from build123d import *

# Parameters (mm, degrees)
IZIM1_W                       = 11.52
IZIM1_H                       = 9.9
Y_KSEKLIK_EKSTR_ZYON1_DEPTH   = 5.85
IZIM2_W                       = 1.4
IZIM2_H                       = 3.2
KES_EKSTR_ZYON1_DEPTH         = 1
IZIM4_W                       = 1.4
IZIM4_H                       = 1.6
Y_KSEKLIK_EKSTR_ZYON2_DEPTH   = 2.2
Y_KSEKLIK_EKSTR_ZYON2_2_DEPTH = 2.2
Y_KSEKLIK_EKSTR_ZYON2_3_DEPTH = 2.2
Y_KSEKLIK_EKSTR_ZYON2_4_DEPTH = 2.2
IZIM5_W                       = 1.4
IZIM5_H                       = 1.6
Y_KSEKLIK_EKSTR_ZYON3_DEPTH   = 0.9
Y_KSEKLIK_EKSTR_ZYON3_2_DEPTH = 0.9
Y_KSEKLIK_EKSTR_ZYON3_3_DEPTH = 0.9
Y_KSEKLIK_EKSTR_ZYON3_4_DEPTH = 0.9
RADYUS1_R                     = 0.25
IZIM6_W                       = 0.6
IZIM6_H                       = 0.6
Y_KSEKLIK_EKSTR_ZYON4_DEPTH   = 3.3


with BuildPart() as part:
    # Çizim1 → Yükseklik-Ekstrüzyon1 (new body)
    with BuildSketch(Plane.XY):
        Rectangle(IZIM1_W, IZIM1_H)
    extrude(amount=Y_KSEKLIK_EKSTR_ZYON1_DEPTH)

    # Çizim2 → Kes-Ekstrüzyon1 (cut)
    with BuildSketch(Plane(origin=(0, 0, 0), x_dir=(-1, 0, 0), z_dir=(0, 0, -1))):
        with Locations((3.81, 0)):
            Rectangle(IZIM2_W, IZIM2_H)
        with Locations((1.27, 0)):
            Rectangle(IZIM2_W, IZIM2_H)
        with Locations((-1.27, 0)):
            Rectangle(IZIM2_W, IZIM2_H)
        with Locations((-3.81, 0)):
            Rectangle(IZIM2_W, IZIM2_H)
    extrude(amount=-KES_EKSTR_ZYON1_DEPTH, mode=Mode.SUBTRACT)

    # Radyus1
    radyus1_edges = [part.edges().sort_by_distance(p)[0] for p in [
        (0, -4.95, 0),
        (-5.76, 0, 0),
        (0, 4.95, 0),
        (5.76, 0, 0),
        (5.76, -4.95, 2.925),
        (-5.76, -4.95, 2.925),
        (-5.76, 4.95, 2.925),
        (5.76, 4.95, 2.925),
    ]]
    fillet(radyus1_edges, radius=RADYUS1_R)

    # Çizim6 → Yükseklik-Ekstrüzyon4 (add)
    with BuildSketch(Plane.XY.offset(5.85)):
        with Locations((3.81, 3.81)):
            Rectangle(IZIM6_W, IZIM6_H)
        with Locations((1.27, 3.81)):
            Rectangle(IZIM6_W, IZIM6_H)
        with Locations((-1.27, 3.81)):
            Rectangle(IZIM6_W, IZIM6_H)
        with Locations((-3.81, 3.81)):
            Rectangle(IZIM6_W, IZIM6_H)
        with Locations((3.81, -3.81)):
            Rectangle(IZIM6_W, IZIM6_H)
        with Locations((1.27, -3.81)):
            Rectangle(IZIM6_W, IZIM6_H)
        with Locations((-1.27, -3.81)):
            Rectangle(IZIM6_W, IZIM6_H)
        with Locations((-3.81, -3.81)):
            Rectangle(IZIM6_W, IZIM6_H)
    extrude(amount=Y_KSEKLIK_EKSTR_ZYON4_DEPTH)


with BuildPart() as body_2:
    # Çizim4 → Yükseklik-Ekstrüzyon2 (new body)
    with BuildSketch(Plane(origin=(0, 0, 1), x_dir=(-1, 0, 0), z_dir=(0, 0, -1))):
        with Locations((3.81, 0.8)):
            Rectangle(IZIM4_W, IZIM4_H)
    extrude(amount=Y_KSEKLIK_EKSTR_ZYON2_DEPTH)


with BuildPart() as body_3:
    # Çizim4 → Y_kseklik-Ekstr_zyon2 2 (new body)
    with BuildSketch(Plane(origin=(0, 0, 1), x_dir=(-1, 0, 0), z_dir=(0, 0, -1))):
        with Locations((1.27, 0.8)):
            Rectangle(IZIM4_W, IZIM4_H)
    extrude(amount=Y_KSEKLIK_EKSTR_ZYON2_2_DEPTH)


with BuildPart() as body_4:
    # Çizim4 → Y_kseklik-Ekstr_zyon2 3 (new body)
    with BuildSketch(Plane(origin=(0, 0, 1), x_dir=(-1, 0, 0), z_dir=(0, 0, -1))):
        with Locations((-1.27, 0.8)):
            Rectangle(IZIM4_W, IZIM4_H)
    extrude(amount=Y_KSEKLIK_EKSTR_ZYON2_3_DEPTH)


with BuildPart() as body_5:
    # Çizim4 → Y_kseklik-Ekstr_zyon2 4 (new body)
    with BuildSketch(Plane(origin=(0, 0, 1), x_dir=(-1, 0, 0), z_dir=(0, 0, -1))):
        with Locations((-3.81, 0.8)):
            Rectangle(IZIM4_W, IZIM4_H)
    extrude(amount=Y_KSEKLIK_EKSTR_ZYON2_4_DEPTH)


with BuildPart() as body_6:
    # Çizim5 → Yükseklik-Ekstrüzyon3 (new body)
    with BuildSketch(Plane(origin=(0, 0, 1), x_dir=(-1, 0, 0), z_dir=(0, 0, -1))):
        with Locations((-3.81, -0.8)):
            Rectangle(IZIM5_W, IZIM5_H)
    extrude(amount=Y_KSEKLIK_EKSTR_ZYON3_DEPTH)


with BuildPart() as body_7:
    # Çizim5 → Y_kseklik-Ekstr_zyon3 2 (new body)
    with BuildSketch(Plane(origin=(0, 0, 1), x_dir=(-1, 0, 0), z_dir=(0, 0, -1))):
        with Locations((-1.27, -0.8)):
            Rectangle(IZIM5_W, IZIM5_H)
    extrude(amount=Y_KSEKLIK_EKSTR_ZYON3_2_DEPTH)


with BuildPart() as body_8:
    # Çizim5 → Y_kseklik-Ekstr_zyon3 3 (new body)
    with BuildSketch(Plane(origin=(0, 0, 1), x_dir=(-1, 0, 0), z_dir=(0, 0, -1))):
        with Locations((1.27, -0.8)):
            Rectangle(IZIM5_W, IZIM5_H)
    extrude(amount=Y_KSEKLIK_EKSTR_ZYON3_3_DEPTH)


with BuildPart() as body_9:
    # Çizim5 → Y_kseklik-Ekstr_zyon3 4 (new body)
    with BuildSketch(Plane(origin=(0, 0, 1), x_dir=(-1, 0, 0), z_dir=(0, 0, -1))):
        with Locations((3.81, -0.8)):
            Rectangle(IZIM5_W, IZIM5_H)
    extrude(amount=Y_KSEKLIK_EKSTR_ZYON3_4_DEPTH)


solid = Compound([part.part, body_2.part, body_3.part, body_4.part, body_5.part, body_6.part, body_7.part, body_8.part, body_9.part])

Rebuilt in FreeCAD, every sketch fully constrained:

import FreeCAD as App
import Part
import Sketcher
from FreeCAD import Vector
Q = App.Units.Quantity


def edges_at(feature, points):
    """Names of the edges that pass closest to the given points."""
    edges = feature.Shape.Edges
    near = lambda p: min(range(len(edges)), key=lambda i: edges[i].distToShape(Part.Vertex(*p))[0])
    return sorted({f"Edge{near(p) + 1}" for p in points})


def add_polygon(sketch, points):
    """Adds a closed chain of lines whose ends are joined by coincident constraints."""
    first, n = sketch.GeometryCount, len(points)
    for a, b in zip(points, points[1:] + points[:1]):
        sketch.addGeometry(Part.LineSegment(App.Vector(*a, 0), App.Vector(*b, 0)), False)
    for i in range(n):
        sketch.addConstraint(Sketcher.Constraint("Coincident", first + i, 2, first + (i + 1) % n, 1))

doc = App.newDocument("Part")
params = doc.addObject("Spreadsheet::Sheet", "Params")
for row, (alias, value) in enumerate([
    ("sketch1_height", "9.9 mm"),
    ("sketch1_width", "11.52 mm"),
    ("pad1_length", "5.85 mm"),
    ("sketch2_width", "1.4 mm"),
    ("sketch2_height", "3.2 mm"),
    ("pocket1_length", "1 mm"),
    ("fillet_radius", "0.25 mm"),
    ("sketch3_width", "0.6 mm"),
    ("pad2_length", "3.3 mm"),
    ("sketch4_width", "1.4 mm"),
    ("sketch4_height", "1.6 mm"),
    ("pad3_length", "2.2 mm"),
    ("sketch5_width", "1.4 mm"),
    ("sketch5_height", "1.6 mm"),
    ("pad4_length", "2.2 mm"),
    ("sketch6_width", "1.4 mm"),
    ("sketch6_height", "1.6 mm"),
    ("pad5_length", "2.2 mm"),
    ("sketch7_width", "1.4 mm"),
    ("sketch7_height", "1.6 mm"),
    ("pad6_length", "2.2 mm"),
    ("sketch8_width", "1.4 mm"),
    ("sketch8_height", "1.6 mm"),
    ("pad7_length", "0.9 mm"),
    ("sketch9_width", "1.4 mm"),
    ("sketch9_height", "1.6 mm"),
    ("pad8_length", "0.9 mm"),
    ("sketch10_width", "1.4 mm"),
    ("sketch10_height", "1.6 mm"),
    ("pad9_length", "0.9 mm"),
    ("sketch11_width", "1.4 mm"),
    ("sketch11_height", "1.6 mm"),
    ("pad10_length", "0.9 mm"),
], start=1):
    params.set(f"A{row}", alias)
    params.set(f"B{row}", "=" + value)
    params.setAlias(f"B{row}", alias)

body = doc.addObject("PartDesign::Body", "Body")

# Sketch on XY plane
sketch1 = body.newObject("Sketcher::SketchObject", "Sketch")
sketch1.AttachmentSupport = (doc.getObject("XY_Plane"), [""])
sketch1.MapMode = "FlatFace"
add_polygon(sketch1, [(-6, 5), (-6, -5), (6, -5), (6, 5)])  # lines 0-3
sketch1.addConstraint(Sketcher.Constraint("Vertical", 0))
sketch1.addConstraint(Sketcher.Constraint("Horizontal", 1))
sketch1.addConstraint(Sketcher.Constraint("Vertical", 2))
sketch1.addConstraint(Sketcher.Constraint("Horizontal", 3))
sketch1.addConstraint(Sketcher.Constraint("Symmetric", 0, 2, 2, 2, -1, 1))
sketch1.addConstraint(Sketcher.Constraint("DistanceY", 0, 2, 0, 1, Q("9.9 mm")))
sketch1.addConstraint(Sketcher.Constraint("DistanceX", 1, 1, 1, 2, Q("11.52 mm")))
sketch1.setExpression("Constraints[9]", "Params.sketch1_height")
sketch1.setExpression("Constraints[10]", "Params.sketch1_width")
pad1 = body.newObject("PartDesign::Pad", "Pad")
pad1.Profile = sketch1
pad1.setExpression("Length", "Params.pad1_length")

# Sketch on XY plane
sketch2 = body.newObject("Sketcher::SketchObject", "Sketch001")
sketch2.AttachmentSupport = (doc.getObject("XY_Plane"), [""])
sketch2.MapMode = "FlatFace"
add_polygon(sketch2, [(-3.1, 1.6), (-3.1, -1.6), (-4.5, -1.6), (-4.5, 1.6)])  # lines 0-3
add_polygon(sketch2, [(-0.6, 1.6), (-0.6, -1.6), (-2, -1.6), (-2, 1.6)])  # lines 4-7
add_polygon(sketch2, [(2, 1.6), (2, -1.6), (0.6, -1.6), (0.6, 1.6)])  # lines 8-11
add_polygon(sketch2, [(4.5, 1.6), (4.5, -1.6), (3.1, -1.6), (3.1, 1.6)])  # lines 12-15
sketch2.addConstraint(Sketcher.Constraint("Vertical", 0))
sketch2.addConstraint(Sketcher.Constraint("Horizontal", 1))
sketch2.addConstraint(Sketcher.Constraint("Vertical", 2))
sketch2.addConstraint(Sketcher.Constraint("Horizontal", 3))
sketch2.addConstraint(Sketcher.Constraint("Vertical", 4))
sketch2.addConstraint(Sketcher.Constraint("Horizontal", 5))
sketch2.addConstraint(Sketcher.Constraint("Vertical", 6))
sketch2.addConstraint(Sketcher.Constraint("Horizontal", 7))
sketch2.addConstraint(Sketcher.Constraint("Vertical", 8))
sketch2.addConstraint(Sketcher.Constraint("Horizontal", 9))
sketch2.addConstraint(Sketcher.Constraint("Vertical", 10))
sketch2.addConstraint(Sketcher.Constraint("Horizontal", 11))
sketch2.addConstraint(Sketcher.Constraint("Vertical", 12))
sketch2.addConstraint(Sketcher.Constraint("Horizontal", 13))
sketch2.addConstraint(Sketcher.Constraint("Vertical", 14))
sketch2.addConstraint(Sketcher.Constraint("Horizontal", 15))
sketch2.addConstraint(Sketcher.Constraint("Symmetric", 6, 2, 8, 2, -1, 1))
sketch2.addConstraint(Sketcher.Constraint("Symmetric", 4, 2, 10, 2, -1, 1))
sketch2.addConstraint(Sketcher.Constraint("Symmetric", 2, 2, 12, 2, -1, 1))
sketch2.addConstraint(Sketcher.Constraint("Symmetric", 0, 2, 14, 2, -1, 1))
sketch2.addConstraint(Sketcher.Constraint("Horizontal", 1, 2, 4, 2))
sketch2.addConstraint(Sketcher.Constraint("Horizontal", 3, 2, 6, 2))
sketch2.addConstraint(Sketcher.Constraint("Horizontal", 5, 2, 8, 2))
sketch2.addConstraint(Sketcher.Constraint("Equal", 3, 5))
sketch2.addConstraint(Sketcher.Constraint("DistanceX", 1, 2, 1, 1, Q("1.4 mm")))
sketch2.addConstraint(Sketcher.Constraint("DistanceY", 0, 2, 0, 1, Q("3.2 mm")))
sketch2.addConstraint(Sketcher.Constraint("DistanceX", 0, 2, -1, 1, Q("3.11 mm")))
sketch2.addConstraint(Sketcher.Constraint("DistanceX", 4, 2, -1, 1, Q("0.57 mm")))
sketch2.setExpression("Constraints[40]", "Params.sketch2_width")
sketch2.setExpression("Constraints[41]", "Params.sketch2_height")
pocket1 = body.newObject("PartDesign::Pocket", "Pocket")
pocket1.Profile = sketch2
pocket1.setExpression("Length", "Params.pocket1_length")
pocket1.Reversed = True
doc.recompute()

fillet = body.newObject("PartDesign::Fillet", "Fillet")
fillet.Base = (pocket1, edges_at(pocket1, [
    (0, -4.95, 0),
    (-5.76, 0, 0),
    (0, 4.95, 0),
    (5.76, 0, 0),
    (5.76, -4.95, 2.925),
    (-5.76, -4.95, 2.925),
    (-5.76, 4.95, 2.925),
    (5.76, 4.95, 2.925),
]))
fillet.setExpression("Radius", "Params.fillet_radius")

# Sketch on XY plane
sketch3 = body.newObject("Sketcher::SketchObject", "Sketch002")
sketch3.AttachmentSupport = (doc.getObject("XY_Plane"), [""])
sketch3.MapMode = "FlatFace"
sketch3.AttachmentOffset = App.Placement(Vector(0, 0, 5.85), App.Rotation())
add_polygon(sketch3, [(3.5, 4.1), (3.5, 3.5), (4.1, 3.5), (4.1, 4.1)])  # lines 0-3
add_polygon(sketch3, [(1, 4.1), (1, 3.5), (1.6, 3.5), (1.6, 4.1)])  # lines 4-7
add_polygon(sketch3, [(-1.6, 4.1), (-1.6, 3.5), (-1, 3.5), (-1, 4.1)])  # lines 8-11
add_polygon(sketch3, [(-4.1, 4.1), (-4.1, 3.5), (-3.5, 3.5), (-3.5, 4.1)])  # lines 12-15
add_polygon(sketch3, [(3.5, -3.5), (3.5, -4.1), (4.1, -4.1), (4.1, -3.5)])  # lines 16-19
add_polygon(sketch3, [(1, -3.5), (1, -4.1), (1.6, -4.1), (1.6, -3.5)])  # lines 20-23
add_polygon(sketch3, [(-1.6, -3.5), (-1.6, -4.1), (-1, -4.1), (-1, -3.5)])  # lines 24-27
add_polygon(sketch3, [(-4.1, -3.5), (-4.1, -4.1), (-3.5, -4.1), (-3.5, -3.5)])  # lines 28-31
sketch3.addConstraint(Sketcher.Constraint("Vertical", 0))
sketch3.addConstraint(Sketcher.Constraint("Horizontal", 1))
sketch3.addConstraint(Sketcher.Constraint("Vertical", 2))
sketch3.addConstraint(Sketcher.Constraint("Horizontal", 3))
sketch3.addConstraint(Sketcher.Constraint("Vertical", 4))
sketch3.addConstraint(Sketcher.Constraint("Horizontal", 5))
sketch3.addConstraint(Sketcher.Constraint("Vertical", 6))
sketch3.addConstraint(Sketcher.Constraint("Horizontal", 7))
sketch3.addConstraint(Sketcher.Constraint("Vertical", 8))
sketch3.addConstraint(Sketcher.Constraint("Horizontal", 9))
sketch3.addConstraint(Sketcher.Constraint("Vertical", 10))
sketch3.addConstraint(Sketcher.Constraint("Horizontal", 11))
sketch3.addConstraint(Sketcher.Constraint("Vertical", 12))
sketch3.addConstraint(Sketcher.Constraint("Horizontal", 13))
sketch3.addConstraint(Sketcher.Constraint("Vertical", 14))
sketch3.addConstraint(Sketcher.Constraint("Horizontal", 15))
sketch3.addConstraint(Sketcher.Constraint("Vertical", 16))
sketch3.addConstraint(Sketcher.Constraint("Horizontal", 17))
sketch3.addConstraint(Sketcher.Constraint("Vertical", 18))
sketch3.addConstraint(Sketcher.Constraint("Horizontal", 19))
sketch3.addConstraint(Sketcher.Constraint("Vertical", 20))
sketch3.addConstraint(Sketcher.Constraint("Horizontal", 21))
sketch3.addConstraint(Sketcher.Constraint("Vertical", 22))
sketch3.addConstraint(Sketcher.Constraint("Horizontal", 23))
sketch3.addConstraint(Sketcher.Constraint("Vertical", 24))
sketch3.addConstraint(Sketcher.Constraint("Horizontal", 25))
sketch3.addConstraint(Sketcher.Constraint("Vertical", 26))
sketch3.addConstraint(Sketcher.Constraint("Horizontal", 27))
sketch3.addConstraint(Sketcher.Constraint("Vertical", 28))
sketch3.addConstraint(Sketcher.Constraint("Horizontal", 29))
sketch3.addConstraint(Sketcher.Constraint("Vertical", 30))
sketch3.addConstraint(Sketcher.Constraint("Horizontal", 31))
sketch3.addConstraint(Sketcher.Constraint("Symmetric", 14, 2, 16, 2, -1, 1))
sketch3.addConstraint(Sketcher.Constraint("Symmetric", 12, 2, 18, 2, -1, 1))
sketch3.addConstraint(Sketcher.Constraint("Symmetric", 10, 2, 20, 2, -1, 1))
sketch3.addConstraint(Sketcher.Constraint("Symmetric", 8, 2, 22, 2, -1, 1))
sketch3.addConstraint(Sketcher.Constraint("Symmetric", 6, 2, 24, 2, -1, 1))
sketch3.addConstraint(Sketcher.Constraint("Symmetric", 4, 2, 26, 2, -1, 1))
sketch3.addConstraint(Sketcher.Constraint("Symmetric", 2, 2, 28, 2, -1, 1))
sketch3.addConstraint(Sketcher.Constraint("Symmetric", 0, 2, 30, 2, -1, 1))
sketch3.addConstraint(Sketcher.Constraint("Symmetric", 5, 2, 8, 2, -2))
sketch3.addConstraint(Sketcher.Constraint("Symmetric", 7, 2, 10, 2, -2))
sketch3.addConstraint(Sketcher.Constraint("Symmetric", 1, 2, 12, 2, -2))
sketch3.addConstraint(Sketcher.Constraint("Symmetric", 3, 2, 14, 2, -2))
sketch3.addConstraint(Sketcher.Constraint("Horizontal", 1, 2, 4, 2))
sketch3.addConstraint(Sketcher.Constraint("Horizontal", 3, 2, 6, 2))
sketch3.addConstraint(Sketcher.Constraint("Equal", 3, 5))
sketch3.addConstraint(Sketcher.Constraint("Equal", 31, 0))
sketch3.addConstraint(Sketcher.Constraint("DistanceX", 1, 1, 1, 2, Q("0.6 mm")))
sketch3.addConstraint(Sketcher.Constraint("DistanceX", -1, 1, 0, 2, Q("3.51 mm")))
sketch3.addConstraint(Sketcher.Constraint("DistanceY", -1, 1, 0, 2, Q("3.51 mm")))
sketch3.addConstraint(Sketcher.Constraint("DistanceX", -1, 1, 4, 2, Q("0.97 mm")))
sketch3.setExpression("Constraints[80]", "Params.sketch3_width")
pad2 = body.newObject("PartDesign::Pad", "Pad001")
pad2.Profile = sketch3
pad2.setExpression("Length", "Params.pad2_length")
body2 = doc.addObject("PartDesign::Body", "Body001")

# Sketch on XY plane
sketch4 = body2.newObject("Sketcher::SketchObject", "Sketch003")
sketch4.AttachmentSupport = (doc.getObject("XY_Plane001"), [""])
sketch4.MapMode = "FlatFace"
sketch4.AttachmentOffset = App.Placement(Vector(0, 0, 1), App.Rotation())
add_polygon(sketch4, [(-3.1, 1.6), (-3.1, 0), (-4.5, 0), (-4.5, 1.6)])  # lines 0-3
sketch4.addConstraint(Sketcher.Constraint("Vertical", 0))
sketch4.addConstraint(Sketcher.Constraint("Horizontal", 1))
sketch4.addConstraint(Sketcher.Constraint("Vertical", 2))
sketch4.addConstraint(Sketcher.Constraint("Horizontal", 3))
sketch4.addConstraint(Sketcher.Constraint("PointOnObject", 0, 2, -1))
sketch4.addConstraint(Sketcher.Constraint("DistanceX", 1, 2, 1, 1, Q("1.4 mm")))
sketch4.addConstraint(Sketcher.Constraint("DistanceY", 0, 2, 0, 1, Q("1.6 mm")))
sketch4.addConstraint(Sketcher.Constraint("DistanceX", 0, 2, -1, 1, Q("3.11 mm")))
sketch4.setExpression("Constraints[9]", "Params.sketch4_width")
sketch4.setExpression("Constraints[10]", "Params.sketch4_height")
pad3 = body2.newObject("PartDesign::Pad", "Pad002")
pad3.Profile = sketch4
pad3.setExpression("Length", "Params.pad3_length")
pad3.Reversed = True
body3 = doc.addObject("PartDesign::Body", "Body002")

# Sketch on XY plane
sketch5 = body3.newObject("Sketcher::SketchObject", "Sketch004")
sketch5.AttachmentSupport = (doc.getObject("XY_Plane002"), [""])
sketch5.MapMode = "FlatFace"
sketch5.AttachmentOffset = App.Placement(Vector(0, 0, 1), App.Rotation())
add_polygon(sketch5, [(-0.6, 1.6), (-0.6, 0), (-2, 0), (-2, 1.6)])  # lines 0-3
sketch5.addConstraint(Sketcher.Constraint("Vertical", 0))
sketch5.addConstraint(Sketcher.Constraint("Horizontal", 1))
sketch5.addConstraint(Sketcher.Constraint("Vertical", 2))
sketch5.addConstraint(Sketcher.Constraint("Horizontal", 3))
sketch5.addConstraint(Sketcher.Constraint("PointOnObject", 0, 2, -1))
sketch5.addConstraint(Sketcher.Constraint("DistanceX", 1, 2, 1, 1, Q("1.4 mm")))
sketch5.addConstraint(Sketcher.Constraint("DistanceY", 0, 2, 0, 1, Q("1.6 mm")))
sketch5.addConstraint(Sketcher.Constraint("DistanceX", 0, 2, -1, 1, Q("0.57 mm")))
sketch5.setExpression("Constraints[9]", "Params.sketch5_width")
sketch5.setExpression("Constraints[10]", "Params.sketch5_height")
pad4 = body3.newObject("PartDesign::Pad", "Pad003")
pad4.Profile = sketch5
pad4.setExpression("Length", "Params.pad4_length")
pad4.Reversed = True
body4 = doc.addObject("PartDesign::Body", "Body003")

# Sketch on XY plane
sketch6 = body4.newObject("Sketcher::SketchObject", "Sketch005")
sketch6.AttachmentSupport = (doc.getObject("XY_Plane003"), [""])
sketch6.MapMode = "FlatFace"
sketch6.AttachmentOffset = App.Placement(Vector(0, 0, 1), App.Rotation())
add_polygon(sketch6, [(2, 1.6), (2, 0), (0.6, 0), (0.6, 1.6)])  # lines 0-3
sketch6.addConstraint(Sketcher.Constraint("Vertical", 0))
sketch6.addConstraint(Sketcher.Constraint("Horizontal", 1))
sketch6.addConstraint(Sketcher.Constraint("Vertical", 2))
sketch6.addConstraint(Sketcher.Constraint("Horizontal", 3))
sketch6.addConstraint(Sketcher.Constraint("PointOnObject", 0, 2, -1))
sketch6.addConstraint(Sketcher.Constraint("DistanceX", 1, 2, 1, 1, Q("1.4 mm")))
sketch6.addConstraint(Sketcher.Constraint("DistanceY", 0, 2, 0, 1, Q("1.6 mm")))
sketch6.addConstraint(Sketcher.Constraint("DistanceX", -1, 1, 0, 2, Q("1.97 mm")))
sketch6.setExpression("Constraints[9]", "Params.sketch6_width")
sketch6.setExpression("Constraints[10]", "Params.sketch6_height")
pad5 = body4.newObject("PartDesign::Pad", "Pad004")
pad5.Profile = sketch6
pad5.setExpression("Length", "Params.pad5_length")
pad5.Reversed = True
body5 = doc.addObject("PartDesign::Body", "Body004")

# Sketch on XY plane
sketch7 = body5.newObject("Sketcher::SketchObject", "Sketch006")
sketch7.AttachmentSupport = (doc.getObject("XY_Plane004"), [""])
sketch7.MapMode = "FlatFace"
sketch7.AttachmentOffset = App.Placement(Vector(0, 0, 1), App.Rotation())
add_polygon(sketch7, [(4.5, 1.6), (4.5, 0), (3.1, 0), (3.1, 1.6)])  # lines 0-3
sketch7.addConstraint(Sketcher.Constraint("Vertical", 0))
sketch7.addConstraint(Sketcher.Constraint("Horizontal", 1))
sketch7.addConstraint(Sketcher.Constraint("Vertical", 2))
sketch7.addConstraint(Sketcher.Constraint("Horizontal", 3))
sketch7.addConstraint(Sketcher.Constraint("PointOnObject", 0, 2, -1))
sketch7.addConstraint(Sketcher.Constraint("DistanceX", 1, 2, 1, 1, Q("1.4 mm")))
sketch7.addConstraint(Sketcher.Constraint("DistanceY", 0, 2, 0, 1, Q("1.6 mm")))
sketch7.addConstraint(Sketcher.Constraint("DistanceX", -1, 1, 0, 2, Q("4.51 mm")))
sketch7.setExpression("Constraints[9]", "Params.sketch7_width")
sketch7.setExpression("Constraints[10]", "Params.sketch7_height")
pad6 = body5.newObject("PartDesign::Pad", "Pad005")
pad6.Profile = sketch7
pad6.setExpression("Length", "Params.pad6_length")
pad6.Reversed = True
body6 = doc.addObject("PartDesign::Body", "Body005")

# Sketch on XY plane
sketch8 = body6.newObject("Sketcher::SketchObject", "Sketch007")
sketch8.AttachmentSupport = (doc.getObject("XY_Plane005"), [""])
sketch8.MapMode = "FlatFace"
sketch8.AttachmentOffset = App.Placement(Vector(0, 0, 1), App.Rotation())
add_polygon(sketch8, [(4.5, 0), (4.5, -1.6), (3.1, -1.6), (3.1, 0)])  # lines 0-3
sketch8.addConstraint(Sketcher.Constraint("Vertical", 0))
sketch8.addConstraint(Sketcher.Constraint("Horizontal", 1))
sketch8.addConstraint(Sketcher.Constraint("Vertical", 2))
sketch8.addConstraint(Sketcher.Constraint("Horizontal", 3))
sketch8.addConstraint(Sketcher.Constraint("PointOnObject", 2, 2, -1))
sketch8.addConstraint(Sketcher.Constraint("DistanceX", 1, 2, 1, 1, Q("1.4 mm")))
sketch8.addConstraint(Sketcher.Constraint("DistanceY", 0, 2, 0, 1, Q("1.6 mm")))
sketch8.addConstraint(Sketcher.Constraint("DistanceX", -1, 1, 0, 2, Q("4.51 mm")))
sketch8.setExpression("Constraints[9]", "Params.sketch8_width")
sketch8.setExpression("Constraints[10]", "Params.sketch8_height")
pad7 = body6.newObject("PartDesign::Pad", "Pad006")
pad7.Profile = sketch8
pad7.setExpression("Length", "Params.pad7_length")
pad7.Reversed = True
body7 = doc.addObject("PartDesign::Body", "Body006")

# Sketch on XY plane
sketch9 = body7.newObject("Sketcher::SketchObject", "Sketch008")
sketch9.AttachmentSupport = (doc.getObject("XY_Plane006"), [""])
sketch9.MapMode = "FlatFace"
sketch9.AttachmentOffset = App.Placement(Vector(0, 0, 1), App.Rotation())
add_polygon(sketch9, [(2, 0), (2, -1.6), (0.6, -1.6), (0.6, 0)])  # lines 0-3
sketch9.addConstraint(Sketcher.Constraint("Vertical", 0))
sketch9.addConstraint(Sketcher.Constraint("Horizontal", 1))
sketch9.addConstraint(Sketcher.Constraint("Vertical", 2))
sketch9.addConstraint(Sketcher.Constraint("Horizontal", 3))
sketch9.addConstraint(Sketcher.Constraint("PointOnObject", 2, 2, -1))
sketch9.addConstraint(Sketcher.Constraint("DistanceX", 1, 2, 1, 1, Q("1.4 mm")))
sketch9.addConstraint(Sketcher.Constraint("DistanceY", 0, 2, 0, 1, Q("1.6 mm")))
sketch9.addConstraint(Sketcher.Constraint("DistanceX", -1, 1, 0, 2, Q("1.97 mm")))
sketch9.setExpression("Constraints[9]", "Params.sketch9_width")
sketch9.setExpression("Constraints[10]", "Params.sketch9_height")
pad8 = body7.newObject("PartDesign::Pad", "Pad007")
pad8.Profile = sketch9
pad8.setExpression("Length", "Params.pad8_length")
pad8.Reversed = True
body8 = doc.addObject("PartDesign::Body", "Body007")

# Sketch on XY plane
sketch10 = body8.newObject("Sketcher::SketchObject", "Sketch009")
sketch10.AttachmentSupport = (doc.getObject("XY_Plane007"), [""])
sketch10.MapMode = "FlatFace"
sketch10.AttachmentOffset = App.Placement(Vector(0, 0, 1), App.Rotation())
add_polygon(sketch10, [(-0.6, 0), (-0.6, -1.6), (-2, -1.6), (-2, 0)])  # lines 0-3
sketch10.addConstraint(Sketcher.Constraint("Vertical", 0))
sketch10.addConstraint(Sketcher.Constraint("Horizontal", 1))
sketch10.addConstraint(Sketcher.Constraint("Vertical", 2))
sketch10.addConstraint(Sketcher.Constraint("Horizontal", 3))
sketch10.addConstraint(Sketcher.Constraint("PointOnObject", 2, 2, -1))
sketch10.addConstraint(Sketcher.Constraint("DistanceX", 1, 2, 1, 1, Q("1.4 mm")))
sketch10.addConstraint(Sketcher.Constraint("DistanceY", 0, 2, 0, 1, Q("1.6 mm")))
sketch10.addConstraint(Sketcher.Constraint("DistanceX", 0, 2, -1, 1, Q("0.57 mm")))
sketch10.setExpression("Constraints[9]", "Params.sketch10_width")
sketch10.setExpression("Constraints[10]", "Params.sketch10_height")
pad9 = body8.newObject("PartDesign::Pad", "Pad008")
pad9.Profile = sketch10
pad9.setExpression("Length", "Params.pad9_length")
pad9.Reversed = True
body9 = doc.addObject("PartDesign::Body", "Body008")

# Sketch on XY plane
sketch11 = body9.newObject("Sketcher::SketchObject", "Sketch010")
sketch11.AttachmentSupport = (doc.getObject("XY_Plane008"), [""])
sketch11.MapMode = "FlatFace"
sketch11.AttachmentOffset = App.Placement(Vector(0, 0, 1), App.Rotation())
add_polygon(sketch11, [(-3.1, 0), (-3.1, -1.6), (-4.5, -1.6), (-4.5, 0)])  # lines 0-3
sketch11.addConstraint(Sketcher.Constraint("Vertical", 0))
sketch11.addConstraint(Sketcher.Constraint("Horizontal", 1))
sketch11.addConstraint(Sketcher.Constraint("Vertical", 2))
sketch11.addConstraint(Sketcher.Constraint("Horizontal", 3))
sketch11.addConstraint(Sketcher.Constraint("PointOnObject", 2, 2, -1))
sketch11.addConstraint(Sketcher.Constraint("DistanceX", 1, 2, 1, 1, Q("1.4 mm")))
sketch11.addConstraint(Sketcher.Constraint("DistanceY", 0, 2, 0, 1, Q("1.6 mm")))
sketch11.addConstraint(Sketcher.Constraint("DistanceX", 0, 2, -1, 1, Q("3.11 mm")))
sketch11.setExpression("Constraints[9]", "Params.sketch11_width")
sketch11.setExpression("Constraints[10]", "Params.sketch11_height")
pad10 = body9.newObject("PartDesign::Pad", "Pad009")
pad10.Profile = sketch11
pad10.setExpression("Length", "Params.pad10_length")
pad10.Reversed = True

doc.recompute()
